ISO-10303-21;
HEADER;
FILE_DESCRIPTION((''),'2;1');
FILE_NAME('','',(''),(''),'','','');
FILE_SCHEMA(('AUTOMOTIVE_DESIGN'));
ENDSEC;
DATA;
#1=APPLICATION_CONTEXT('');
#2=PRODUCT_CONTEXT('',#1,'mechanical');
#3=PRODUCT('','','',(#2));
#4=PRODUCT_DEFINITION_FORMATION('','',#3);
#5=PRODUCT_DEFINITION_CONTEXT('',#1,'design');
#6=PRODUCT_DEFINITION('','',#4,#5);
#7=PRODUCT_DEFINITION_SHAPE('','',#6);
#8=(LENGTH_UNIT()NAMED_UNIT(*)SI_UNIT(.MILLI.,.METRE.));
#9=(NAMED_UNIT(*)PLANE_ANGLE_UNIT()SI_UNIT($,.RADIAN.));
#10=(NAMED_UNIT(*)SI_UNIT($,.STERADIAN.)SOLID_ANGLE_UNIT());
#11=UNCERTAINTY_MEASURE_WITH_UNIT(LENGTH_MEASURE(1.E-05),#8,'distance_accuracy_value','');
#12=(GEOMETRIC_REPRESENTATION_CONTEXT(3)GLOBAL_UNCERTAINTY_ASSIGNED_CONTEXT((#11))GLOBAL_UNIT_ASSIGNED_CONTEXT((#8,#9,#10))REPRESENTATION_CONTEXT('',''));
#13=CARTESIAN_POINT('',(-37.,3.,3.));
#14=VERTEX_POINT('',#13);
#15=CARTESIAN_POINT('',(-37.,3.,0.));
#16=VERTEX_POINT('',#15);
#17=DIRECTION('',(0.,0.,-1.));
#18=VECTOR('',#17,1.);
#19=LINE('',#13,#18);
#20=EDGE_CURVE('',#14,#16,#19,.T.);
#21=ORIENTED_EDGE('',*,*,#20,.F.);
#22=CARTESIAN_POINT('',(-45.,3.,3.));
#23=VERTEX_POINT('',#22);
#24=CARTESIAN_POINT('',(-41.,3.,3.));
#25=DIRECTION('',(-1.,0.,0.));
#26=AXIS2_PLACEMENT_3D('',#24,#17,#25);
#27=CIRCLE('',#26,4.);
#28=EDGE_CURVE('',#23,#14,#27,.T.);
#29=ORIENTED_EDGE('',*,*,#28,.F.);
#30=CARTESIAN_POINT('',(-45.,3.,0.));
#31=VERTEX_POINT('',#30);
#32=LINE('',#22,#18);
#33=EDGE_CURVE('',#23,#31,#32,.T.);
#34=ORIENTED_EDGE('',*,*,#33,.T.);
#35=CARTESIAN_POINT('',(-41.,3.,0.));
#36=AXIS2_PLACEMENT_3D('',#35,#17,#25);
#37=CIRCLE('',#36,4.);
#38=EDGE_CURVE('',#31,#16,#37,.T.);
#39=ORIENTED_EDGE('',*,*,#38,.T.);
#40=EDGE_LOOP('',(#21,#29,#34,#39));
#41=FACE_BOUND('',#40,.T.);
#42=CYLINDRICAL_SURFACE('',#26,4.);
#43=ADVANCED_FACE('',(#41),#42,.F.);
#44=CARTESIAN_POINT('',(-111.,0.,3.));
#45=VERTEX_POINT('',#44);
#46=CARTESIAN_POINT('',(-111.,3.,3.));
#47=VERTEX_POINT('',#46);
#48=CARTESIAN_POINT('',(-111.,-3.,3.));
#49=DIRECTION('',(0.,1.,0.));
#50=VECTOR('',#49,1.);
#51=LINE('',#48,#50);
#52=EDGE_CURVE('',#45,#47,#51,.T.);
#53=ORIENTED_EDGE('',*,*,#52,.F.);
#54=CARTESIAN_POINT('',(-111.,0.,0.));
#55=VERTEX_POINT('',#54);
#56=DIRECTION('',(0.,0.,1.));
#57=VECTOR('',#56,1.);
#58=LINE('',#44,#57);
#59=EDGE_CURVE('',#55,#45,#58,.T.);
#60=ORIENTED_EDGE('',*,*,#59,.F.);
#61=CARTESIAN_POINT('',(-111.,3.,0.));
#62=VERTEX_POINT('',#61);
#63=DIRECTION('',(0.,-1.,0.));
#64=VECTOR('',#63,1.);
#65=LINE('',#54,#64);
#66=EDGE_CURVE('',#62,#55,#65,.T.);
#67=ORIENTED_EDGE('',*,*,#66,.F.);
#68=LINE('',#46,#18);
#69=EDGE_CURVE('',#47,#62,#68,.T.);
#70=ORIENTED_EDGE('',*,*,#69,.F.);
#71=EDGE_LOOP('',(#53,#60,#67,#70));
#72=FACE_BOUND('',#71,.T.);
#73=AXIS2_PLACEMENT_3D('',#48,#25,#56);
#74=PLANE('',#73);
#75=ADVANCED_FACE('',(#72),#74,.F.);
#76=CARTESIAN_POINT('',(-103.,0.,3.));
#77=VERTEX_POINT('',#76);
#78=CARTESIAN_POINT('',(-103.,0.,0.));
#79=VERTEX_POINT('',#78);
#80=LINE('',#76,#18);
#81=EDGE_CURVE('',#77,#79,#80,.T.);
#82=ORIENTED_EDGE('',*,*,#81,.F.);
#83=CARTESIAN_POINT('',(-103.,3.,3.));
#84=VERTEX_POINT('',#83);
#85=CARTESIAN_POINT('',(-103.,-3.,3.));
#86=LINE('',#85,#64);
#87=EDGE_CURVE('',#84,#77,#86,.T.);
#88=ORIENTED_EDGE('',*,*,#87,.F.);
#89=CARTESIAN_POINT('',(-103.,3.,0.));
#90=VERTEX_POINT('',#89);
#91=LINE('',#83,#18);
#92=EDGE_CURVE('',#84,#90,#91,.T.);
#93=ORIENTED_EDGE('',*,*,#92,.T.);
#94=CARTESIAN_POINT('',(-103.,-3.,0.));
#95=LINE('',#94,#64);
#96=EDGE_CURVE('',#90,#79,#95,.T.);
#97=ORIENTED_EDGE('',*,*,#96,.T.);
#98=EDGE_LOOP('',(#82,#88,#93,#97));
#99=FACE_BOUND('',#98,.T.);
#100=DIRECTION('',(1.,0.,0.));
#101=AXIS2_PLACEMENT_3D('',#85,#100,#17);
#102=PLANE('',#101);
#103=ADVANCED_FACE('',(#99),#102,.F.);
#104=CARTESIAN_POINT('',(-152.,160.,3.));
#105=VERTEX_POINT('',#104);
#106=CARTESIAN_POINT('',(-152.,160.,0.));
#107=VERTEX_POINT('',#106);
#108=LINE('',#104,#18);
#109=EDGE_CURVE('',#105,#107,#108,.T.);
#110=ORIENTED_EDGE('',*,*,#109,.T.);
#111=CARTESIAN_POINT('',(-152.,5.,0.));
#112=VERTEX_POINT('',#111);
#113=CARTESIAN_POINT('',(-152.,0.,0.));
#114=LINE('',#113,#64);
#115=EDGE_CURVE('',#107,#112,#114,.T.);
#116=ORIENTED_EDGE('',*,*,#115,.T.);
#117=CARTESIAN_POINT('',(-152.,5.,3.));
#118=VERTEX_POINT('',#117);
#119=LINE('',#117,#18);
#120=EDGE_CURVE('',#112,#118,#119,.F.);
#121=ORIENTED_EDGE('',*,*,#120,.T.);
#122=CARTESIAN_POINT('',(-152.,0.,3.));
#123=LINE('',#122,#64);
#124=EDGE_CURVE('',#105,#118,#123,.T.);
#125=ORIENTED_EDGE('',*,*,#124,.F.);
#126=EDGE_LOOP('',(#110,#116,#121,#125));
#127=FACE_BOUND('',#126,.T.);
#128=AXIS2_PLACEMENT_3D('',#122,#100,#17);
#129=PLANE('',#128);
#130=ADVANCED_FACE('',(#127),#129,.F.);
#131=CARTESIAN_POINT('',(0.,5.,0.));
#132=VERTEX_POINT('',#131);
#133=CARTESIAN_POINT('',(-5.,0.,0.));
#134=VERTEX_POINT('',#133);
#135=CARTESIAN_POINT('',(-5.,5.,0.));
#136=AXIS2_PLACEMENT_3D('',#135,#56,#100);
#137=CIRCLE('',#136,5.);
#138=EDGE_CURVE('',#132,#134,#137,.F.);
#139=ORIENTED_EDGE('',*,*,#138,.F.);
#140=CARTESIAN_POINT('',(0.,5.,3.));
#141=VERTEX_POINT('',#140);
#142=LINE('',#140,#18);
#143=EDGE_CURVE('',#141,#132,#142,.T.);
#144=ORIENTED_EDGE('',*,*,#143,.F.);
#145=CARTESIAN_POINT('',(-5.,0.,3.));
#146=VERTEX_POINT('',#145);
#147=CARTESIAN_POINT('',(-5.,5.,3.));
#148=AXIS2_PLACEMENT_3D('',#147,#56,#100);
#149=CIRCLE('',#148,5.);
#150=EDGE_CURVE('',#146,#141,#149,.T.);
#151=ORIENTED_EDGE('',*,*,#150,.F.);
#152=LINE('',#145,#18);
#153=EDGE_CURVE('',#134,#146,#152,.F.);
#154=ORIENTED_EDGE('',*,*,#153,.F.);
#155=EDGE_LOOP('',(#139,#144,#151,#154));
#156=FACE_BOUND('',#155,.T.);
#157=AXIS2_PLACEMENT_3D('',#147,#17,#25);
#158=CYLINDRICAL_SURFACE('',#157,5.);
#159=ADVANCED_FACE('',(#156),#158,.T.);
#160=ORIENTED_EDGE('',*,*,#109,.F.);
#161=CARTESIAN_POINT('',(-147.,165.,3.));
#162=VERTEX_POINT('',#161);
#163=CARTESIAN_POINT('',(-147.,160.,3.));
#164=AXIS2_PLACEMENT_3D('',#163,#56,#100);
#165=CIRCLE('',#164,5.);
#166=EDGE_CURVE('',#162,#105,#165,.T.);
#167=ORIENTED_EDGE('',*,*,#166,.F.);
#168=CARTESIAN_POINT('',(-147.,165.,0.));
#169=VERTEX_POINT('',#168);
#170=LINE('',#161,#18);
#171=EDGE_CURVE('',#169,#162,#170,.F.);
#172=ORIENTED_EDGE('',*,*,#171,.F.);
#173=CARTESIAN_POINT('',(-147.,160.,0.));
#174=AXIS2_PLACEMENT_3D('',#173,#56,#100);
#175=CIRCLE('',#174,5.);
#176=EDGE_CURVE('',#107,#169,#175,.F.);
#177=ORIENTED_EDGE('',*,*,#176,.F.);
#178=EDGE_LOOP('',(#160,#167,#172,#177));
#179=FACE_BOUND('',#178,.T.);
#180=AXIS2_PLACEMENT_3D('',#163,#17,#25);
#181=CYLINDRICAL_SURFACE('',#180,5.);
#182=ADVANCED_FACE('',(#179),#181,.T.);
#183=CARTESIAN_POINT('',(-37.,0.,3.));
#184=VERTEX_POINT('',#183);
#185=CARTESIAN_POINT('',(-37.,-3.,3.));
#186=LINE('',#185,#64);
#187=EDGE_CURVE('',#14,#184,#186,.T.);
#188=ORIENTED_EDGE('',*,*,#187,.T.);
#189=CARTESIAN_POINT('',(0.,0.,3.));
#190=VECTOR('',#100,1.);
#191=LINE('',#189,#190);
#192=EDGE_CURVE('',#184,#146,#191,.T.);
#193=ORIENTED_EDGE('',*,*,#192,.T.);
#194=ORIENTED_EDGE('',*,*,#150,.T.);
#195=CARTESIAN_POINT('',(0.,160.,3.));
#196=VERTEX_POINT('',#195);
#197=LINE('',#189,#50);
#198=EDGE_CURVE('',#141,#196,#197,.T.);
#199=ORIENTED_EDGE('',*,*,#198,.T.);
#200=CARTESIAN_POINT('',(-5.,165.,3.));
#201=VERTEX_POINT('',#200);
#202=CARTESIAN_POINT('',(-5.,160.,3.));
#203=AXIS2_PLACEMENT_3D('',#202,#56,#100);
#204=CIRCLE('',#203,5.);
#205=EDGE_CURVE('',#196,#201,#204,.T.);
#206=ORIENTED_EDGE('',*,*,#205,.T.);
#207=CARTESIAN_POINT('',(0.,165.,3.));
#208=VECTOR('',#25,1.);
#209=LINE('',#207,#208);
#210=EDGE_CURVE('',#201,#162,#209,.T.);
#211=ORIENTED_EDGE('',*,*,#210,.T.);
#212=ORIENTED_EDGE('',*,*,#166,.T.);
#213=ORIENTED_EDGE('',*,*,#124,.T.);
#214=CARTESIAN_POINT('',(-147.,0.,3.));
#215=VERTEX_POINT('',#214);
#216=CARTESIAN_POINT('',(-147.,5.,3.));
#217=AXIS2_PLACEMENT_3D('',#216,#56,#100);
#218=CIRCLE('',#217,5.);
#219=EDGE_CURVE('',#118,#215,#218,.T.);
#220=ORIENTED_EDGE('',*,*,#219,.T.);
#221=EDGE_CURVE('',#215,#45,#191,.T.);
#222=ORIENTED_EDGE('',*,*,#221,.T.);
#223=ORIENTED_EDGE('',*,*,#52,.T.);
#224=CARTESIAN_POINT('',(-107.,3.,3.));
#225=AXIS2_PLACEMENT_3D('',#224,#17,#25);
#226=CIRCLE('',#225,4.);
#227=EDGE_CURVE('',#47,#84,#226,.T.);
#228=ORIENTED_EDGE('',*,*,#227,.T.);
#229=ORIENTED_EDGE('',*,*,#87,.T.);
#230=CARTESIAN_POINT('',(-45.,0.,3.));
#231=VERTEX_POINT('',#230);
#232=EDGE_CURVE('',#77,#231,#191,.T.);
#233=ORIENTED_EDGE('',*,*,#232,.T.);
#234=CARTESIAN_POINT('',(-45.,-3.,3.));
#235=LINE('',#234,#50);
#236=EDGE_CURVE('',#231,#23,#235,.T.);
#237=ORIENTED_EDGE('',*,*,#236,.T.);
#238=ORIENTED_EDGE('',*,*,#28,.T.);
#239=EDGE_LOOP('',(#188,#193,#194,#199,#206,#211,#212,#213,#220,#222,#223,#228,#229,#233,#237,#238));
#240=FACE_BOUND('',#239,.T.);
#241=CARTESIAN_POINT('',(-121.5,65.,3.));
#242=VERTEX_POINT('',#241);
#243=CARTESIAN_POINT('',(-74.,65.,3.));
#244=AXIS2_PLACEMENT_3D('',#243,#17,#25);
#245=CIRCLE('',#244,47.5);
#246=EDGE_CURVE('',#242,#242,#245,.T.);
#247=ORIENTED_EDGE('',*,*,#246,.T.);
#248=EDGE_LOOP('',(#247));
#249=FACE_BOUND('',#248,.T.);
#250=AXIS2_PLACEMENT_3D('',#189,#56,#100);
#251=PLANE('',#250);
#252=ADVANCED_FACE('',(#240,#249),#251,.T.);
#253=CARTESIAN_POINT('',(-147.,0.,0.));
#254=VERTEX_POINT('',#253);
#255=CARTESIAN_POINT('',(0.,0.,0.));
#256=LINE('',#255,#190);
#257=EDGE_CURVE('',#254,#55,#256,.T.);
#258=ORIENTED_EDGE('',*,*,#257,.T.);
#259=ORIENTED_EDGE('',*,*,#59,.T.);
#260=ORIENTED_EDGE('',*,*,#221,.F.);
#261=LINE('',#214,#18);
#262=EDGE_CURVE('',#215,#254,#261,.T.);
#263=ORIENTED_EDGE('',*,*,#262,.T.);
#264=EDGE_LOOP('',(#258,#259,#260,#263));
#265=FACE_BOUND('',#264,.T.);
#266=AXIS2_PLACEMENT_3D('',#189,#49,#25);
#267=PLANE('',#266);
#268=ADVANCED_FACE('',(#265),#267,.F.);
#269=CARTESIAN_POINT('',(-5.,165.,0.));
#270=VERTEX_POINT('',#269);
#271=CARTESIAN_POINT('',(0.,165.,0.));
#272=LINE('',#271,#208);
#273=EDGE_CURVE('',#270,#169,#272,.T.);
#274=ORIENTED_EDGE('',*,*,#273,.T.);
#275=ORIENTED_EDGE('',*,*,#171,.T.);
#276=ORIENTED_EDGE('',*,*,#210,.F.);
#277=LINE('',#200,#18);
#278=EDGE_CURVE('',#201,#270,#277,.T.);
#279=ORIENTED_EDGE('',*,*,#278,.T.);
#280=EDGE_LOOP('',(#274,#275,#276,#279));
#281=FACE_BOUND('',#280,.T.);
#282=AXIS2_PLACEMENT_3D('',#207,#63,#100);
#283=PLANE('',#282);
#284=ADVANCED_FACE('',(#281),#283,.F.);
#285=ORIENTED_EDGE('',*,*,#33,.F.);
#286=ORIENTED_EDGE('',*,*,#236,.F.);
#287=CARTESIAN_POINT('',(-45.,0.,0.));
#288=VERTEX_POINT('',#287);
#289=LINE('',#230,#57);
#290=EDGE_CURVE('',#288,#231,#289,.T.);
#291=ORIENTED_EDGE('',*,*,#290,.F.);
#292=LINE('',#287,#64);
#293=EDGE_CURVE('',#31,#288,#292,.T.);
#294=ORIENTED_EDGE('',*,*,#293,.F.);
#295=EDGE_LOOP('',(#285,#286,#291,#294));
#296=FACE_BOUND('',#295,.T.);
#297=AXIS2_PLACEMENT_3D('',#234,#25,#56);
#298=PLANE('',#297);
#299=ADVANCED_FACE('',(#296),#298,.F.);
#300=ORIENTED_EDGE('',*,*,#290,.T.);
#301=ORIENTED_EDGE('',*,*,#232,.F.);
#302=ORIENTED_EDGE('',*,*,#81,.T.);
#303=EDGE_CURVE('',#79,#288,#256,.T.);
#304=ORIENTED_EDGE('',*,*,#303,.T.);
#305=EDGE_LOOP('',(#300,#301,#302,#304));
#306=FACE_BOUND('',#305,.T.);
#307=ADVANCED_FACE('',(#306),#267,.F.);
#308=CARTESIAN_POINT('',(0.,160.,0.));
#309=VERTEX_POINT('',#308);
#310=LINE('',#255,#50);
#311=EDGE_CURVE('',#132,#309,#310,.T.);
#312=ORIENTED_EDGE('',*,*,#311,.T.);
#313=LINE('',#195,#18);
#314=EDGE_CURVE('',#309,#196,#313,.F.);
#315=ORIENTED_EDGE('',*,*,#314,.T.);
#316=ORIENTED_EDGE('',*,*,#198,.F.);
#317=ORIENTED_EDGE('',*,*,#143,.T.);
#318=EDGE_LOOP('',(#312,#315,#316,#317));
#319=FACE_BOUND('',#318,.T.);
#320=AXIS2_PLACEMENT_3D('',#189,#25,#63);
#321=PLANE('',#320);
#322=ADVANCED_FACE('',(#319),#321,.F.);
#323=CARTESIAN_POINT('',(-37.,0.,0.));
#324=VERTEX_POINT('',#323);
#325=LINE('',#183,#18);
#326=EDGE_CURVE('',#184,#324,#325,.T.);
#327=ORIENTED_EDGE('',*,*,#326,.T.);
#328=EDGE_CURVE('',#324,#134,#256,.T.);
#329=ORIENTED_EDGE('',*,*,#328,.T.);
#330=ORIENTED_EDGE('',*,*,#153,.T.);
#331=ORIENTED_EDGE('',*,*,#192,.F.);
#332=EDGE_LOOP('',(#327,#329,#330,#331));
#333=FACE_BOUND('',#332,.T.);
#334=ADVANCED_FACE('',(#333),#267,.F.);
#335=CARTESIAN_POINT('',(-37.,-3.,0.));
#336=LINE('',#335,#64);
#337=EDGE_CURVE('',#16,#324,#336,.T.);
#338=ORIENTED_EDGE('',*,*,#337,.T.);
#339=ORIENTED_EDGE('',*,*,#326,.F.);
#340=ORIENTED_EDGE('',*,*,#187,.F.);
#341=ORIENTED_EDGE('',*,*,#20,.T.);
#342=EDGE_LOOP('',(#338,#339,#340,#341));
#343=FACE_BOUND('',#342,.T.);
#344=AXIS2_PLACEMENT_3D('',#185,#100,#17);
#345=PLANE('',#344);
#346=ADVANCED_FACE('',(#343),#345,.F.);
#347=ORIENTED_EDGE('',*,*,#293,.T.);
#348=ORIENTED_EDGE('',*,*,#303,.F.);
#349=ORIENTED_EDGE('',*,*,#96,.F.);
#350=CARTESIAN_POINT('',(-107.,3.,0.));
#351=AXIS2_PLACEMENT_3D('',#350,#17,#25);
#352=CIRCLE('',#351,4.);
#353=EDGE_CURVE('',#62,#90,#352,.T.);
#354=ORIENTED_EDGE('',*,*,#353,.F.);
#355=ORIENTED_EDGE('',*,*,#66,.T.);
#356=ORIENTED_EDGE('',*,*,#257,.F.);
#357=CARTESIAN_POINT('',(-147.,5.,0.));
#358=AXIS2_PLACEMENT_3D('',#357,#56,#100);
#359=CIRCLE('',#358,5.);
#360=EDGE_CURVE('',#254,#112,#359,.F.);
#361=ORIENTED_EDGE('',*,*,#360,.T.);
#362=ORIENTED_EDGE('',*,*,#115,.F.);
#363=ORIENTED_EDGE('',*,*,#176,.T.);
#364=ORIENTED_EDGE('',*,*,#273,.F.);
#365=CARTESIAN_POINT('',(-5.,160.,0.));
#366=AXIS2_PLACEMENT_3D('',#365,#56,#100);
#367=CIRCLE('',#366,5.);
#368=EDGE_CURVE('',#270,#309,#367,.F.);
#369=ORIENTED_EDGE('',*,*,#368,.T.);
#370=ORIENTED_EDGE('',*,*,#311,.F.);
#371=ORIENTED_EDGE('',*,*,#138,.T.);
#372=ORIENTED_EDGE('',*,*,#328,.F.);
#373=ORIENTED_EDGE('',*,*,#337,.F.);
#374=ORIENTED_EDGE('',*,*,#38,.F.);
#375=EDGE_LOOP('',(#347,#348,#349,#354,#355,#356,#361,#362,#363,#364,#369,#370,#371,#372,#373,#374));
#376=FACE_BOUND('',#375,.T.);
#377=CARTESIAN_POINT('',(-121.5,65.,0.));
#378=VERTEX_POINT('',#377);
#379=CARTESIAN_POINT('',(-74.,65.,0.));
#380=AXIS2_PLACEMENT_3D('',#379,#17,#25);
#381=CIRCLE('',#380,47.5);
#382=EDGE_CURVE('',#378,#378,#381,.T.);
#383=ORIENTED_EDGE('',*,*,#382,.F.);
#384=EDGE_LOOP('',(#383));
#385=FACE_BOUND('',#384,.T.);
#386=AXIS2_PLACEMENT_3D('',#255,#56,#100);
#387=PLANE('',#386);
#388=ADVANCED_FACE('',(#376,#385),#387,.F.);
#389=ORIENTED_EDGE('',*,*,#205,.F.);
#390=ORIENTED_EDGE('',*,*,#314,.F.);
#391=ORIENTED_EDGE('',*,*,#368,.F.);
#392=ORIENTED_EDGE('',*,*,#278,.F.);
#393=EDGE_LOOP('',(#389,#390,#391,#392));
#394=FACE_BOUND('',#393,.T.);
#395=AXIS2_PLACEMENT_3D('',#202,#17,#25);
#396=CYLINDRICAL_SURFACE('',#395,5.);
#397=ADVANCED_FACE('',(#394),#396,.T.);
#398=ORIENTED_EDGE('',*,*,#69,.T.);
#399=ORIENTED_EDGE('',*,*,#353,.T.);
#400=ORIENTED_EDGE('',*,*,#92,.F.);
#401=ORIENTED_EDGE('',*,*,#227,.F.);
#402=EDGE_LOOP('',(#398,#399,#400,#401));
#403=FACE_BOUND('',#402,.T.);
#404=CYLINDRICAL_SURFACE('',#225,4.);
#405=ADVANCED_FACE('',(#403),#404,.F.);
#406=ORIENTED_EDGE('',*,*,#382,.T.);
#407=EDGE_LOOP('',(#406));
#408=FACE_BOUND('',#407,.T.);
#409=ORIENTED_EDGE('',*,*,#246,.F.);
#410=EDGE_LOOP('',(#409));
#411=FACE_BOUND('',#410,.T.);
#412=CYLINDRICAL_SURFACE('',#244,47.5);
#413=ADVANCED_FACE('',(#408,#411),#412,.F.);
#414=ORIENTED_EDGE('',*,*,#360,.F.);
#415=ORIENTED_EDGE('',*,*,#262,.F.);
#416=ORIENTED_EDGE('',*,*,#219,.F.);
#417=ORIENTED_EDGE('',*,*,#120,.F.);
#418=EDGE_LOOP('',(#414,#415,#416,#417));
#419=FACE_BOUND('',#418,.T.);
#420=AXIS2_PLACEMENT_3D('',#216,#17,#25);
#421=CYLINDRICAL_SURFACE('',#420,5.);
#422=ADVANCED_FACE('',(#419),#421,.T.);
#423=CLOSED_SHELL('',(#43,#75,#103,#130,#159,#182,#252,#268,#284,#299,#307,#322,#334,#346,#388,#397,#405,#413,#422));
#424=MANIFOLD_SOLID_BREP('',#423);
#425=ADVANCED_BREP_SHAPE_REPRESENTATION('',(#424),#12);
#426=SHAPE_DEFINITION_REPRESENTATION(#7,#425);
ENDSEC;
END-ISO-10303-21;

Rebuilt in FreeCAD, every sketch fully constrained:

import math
import FreeCAD as App
import Part
import Sketcher
from FreeCAD import Vector


def edges_at(feature, points):
    """Names of the edges that pass closest to the given points."""
    edges = feature.Shape.Edges
    near = lambda p: min(range(len(edges)), key=lambda i: edges[i].distToShape(Part.Vertex(*p))[0])
    return sorted({f"Edge{near(p) + 1}" for p in points})

doc = App.newDocument("Part")
body = doc.addObject("PartDesign::Body", "Body")

# Sketch on XY plane
sketch1 = doc.addObject("Sketcher::SketchObject", "Sketch")
body.addObject(sketch1)
sketch1.AttachmentSupport = (doc.XY_Plane, [""])
sketch1.MapMode = "FlatFace"
sketch1.addGeometry([
    Part.LineSegment(Vector(-152, 165, 0), Vector(-152, 0, 0)),
    Part.LineSegment(Vector(-152, 0, 0), Vector(0, 0, 0)),
    Part.LineSegment(Vector(0, 0, 0), Vector(0, 165, 0)),
    Part.LineSegment(Vector(0, 165, 0), Vector(-152, 165, 0)),
], False)
sketch1.addConstraint([
    Sketcher.Constraint("Coincident", 0, 2, 1, 1),
    Sketcher.Constraint("Coincident", 1, 2, 2, 1),
    Sketcher.Constraint("Coincident", 2, 2, 3, 1),
    Sketcher.Constraint("Coincident", 3, 2, 0, 1),
    Sketcher.Constraint("Vertical", 0),
    Sketcher.Constraint("Horizontal", 1),
    Sketcher.Constraint("Vertical", 2),
    Sketcher.Constraint("Horizontal", 3),
    Sketcher.Constraint("Coincident", 1, 2, -1, 1),
    Sketcher.Constraint("DistanceX", 1, 1, 1, 2, 152.0),
    Sketcher.Constraint("DistanceY", 0, 2, 0, 1, 165.0),
])
pad1 = doc.addObject("PartDesign::Pad", "Pad")
body.addObject(pad1)
pad1.Profile = sketch1
pad1.Length = 3
doc.recompute()

fillet = doc.addObject("PartDesign::Fillet", "Fillet")
body.addObject(fillet)
fillet.Base = (pad1, edges_at(pad1, [
    (0, 0, 1.5),
    (-152, 0, 1.5),
    (-152, 165, 1.5),
    (0, 165, 1.5),
]))
fillet.Radius = 5

# Sketch on XY plane
sketch2 = doc.addObject("Sketcher::SketchObject", "Sketch001")
body.addObject(sketch2)
sketch2.AttachmentSupport = (doc.XY_Plane, [""])
sketch2.MapMode = "FlatFace"
sketch2.addGeometry(Part.Circle(Vector(-74, 65, 0), Vector(0, 0, 1), 48), False)
sketch2.addConstraint([
    Sketcher.Constraint("Diameter", 0, 95.0),
    Sketcher.Constraint("DistanceX", 0, 3, -1, 1, 74.0),
    Sketcher.Constraint("DistanceY", -1, 1, 0, 3, 65.0),
])
pocket1 = doc.addObject("PartDesign::Pocket", "Pocket")
body.addObject(pocket1)
pocket1.Profile = sketch2
pocket1.Length = 3
pocket1.Reversed = True

# Sketch on XY plane
sketch3 = doc.addObject("Sketcher::SketchObject", "Sketch002")
body.addObject(sketch3)
sketch3.AttachmentSupport = (doc.XY_Plane, [""])
sketch3.MapMode = "FlatFace"
sketch3.addGeometry([
    Part.LineSegment(Vector(-37, 3, 0), Vector(-37, -3, 0)),  # 0
    Part.ArcOfCircle(Part.Circle(Vector(-41, -3, 0), Vector(0, 0, 1), 4), math.radians(180), math.radians(360)),  # 1
    Part.LineSegment(Vector(-45, -3, 0), Vector(-45, 3, 0)),  # 2
    Part.ArcOfCircle(Part.Circle(Vector(-41, 3, 0), Vector(0, 0, 1), 4), math.radians(0), math.radians(180)),  # 3
    Part.LineSegment(Vector(-103, 3, 0), Vector(-103, -3, 0)),  # 4
    Part.ArcOfCircle(Part.Circle(Vector(-107, -3, 0), Vector(0, 0, 1), 4), math.radians(180), math.radians(360)),  # 5
    Part.LineSegment(Vector(-111, -3, 0), Vector(-111, 3, 0)),  # 6
    Part.ArcOfCircle(Part.Circle(Vector(-107, 3, 0), Vector(0, 0, 1), 4), math.radians(0), math.radians(180)),  # 7
], False)
sketch3.addConstraint([
    Sketcher.Constraint("Tangent", 0, 2, 1, 2),
    Sketcher.Constraint("Tangent", 1, 1, 2, 1),
    Sketcher.Constraint("Tangent", 2, 2, 3, 2),
    Sketcher.Constraint("Tangent", 3, 1, 0, 1),
    Sketcher.Constraint("Tangent", 4, 2, 5, 2),
    Sketcher.Constraint("Tangent", 5, 1, 6, 1),
    Sketcher.Constraint("Tangent", 6, 2, 7, 2),
    Sketcher.Constraint("Tangent", 7, 1, 4, 1),
    Sketcher.Constraint("Vertical", 0),
    Sketcher.Constraint("Vertical", 2),
    Sketcher.Constraint("Vertical", 4),
    Sketcher.Constraint("Vertical", 6),
    Sketcher.Constraint("Equal", 3, 5),
    Sketcher.Constraint("Horizontal", 1, 3, 5, 3),
    Sketcher.Constraint("Horizontal", 3, 3, 7, 3),
    Sketcher.Constraint("Radius", 1, 4.0),
    Sketcher.Constraint("DistanceY", 0, 2, 0, 1, 6.0),
    Sketcher.Constraint("DistanceX", 1, 3, -1, 1, 41.0),
    Sketcher.Constraint("DistanceY", 1, 3, -1, 1, 3.0),
    Sketcher.Constraint("DistanceX", 5, 3, -1, 1, 107.0),
])
pocket2 = doc.addObject("PartDesign::Pocket", "Pocket001")
body.addObject(pocket2)
pocket2.Profile = sketch3
pocket2.Length = 3
pocket2.Reversed = True

doc.recompute()
